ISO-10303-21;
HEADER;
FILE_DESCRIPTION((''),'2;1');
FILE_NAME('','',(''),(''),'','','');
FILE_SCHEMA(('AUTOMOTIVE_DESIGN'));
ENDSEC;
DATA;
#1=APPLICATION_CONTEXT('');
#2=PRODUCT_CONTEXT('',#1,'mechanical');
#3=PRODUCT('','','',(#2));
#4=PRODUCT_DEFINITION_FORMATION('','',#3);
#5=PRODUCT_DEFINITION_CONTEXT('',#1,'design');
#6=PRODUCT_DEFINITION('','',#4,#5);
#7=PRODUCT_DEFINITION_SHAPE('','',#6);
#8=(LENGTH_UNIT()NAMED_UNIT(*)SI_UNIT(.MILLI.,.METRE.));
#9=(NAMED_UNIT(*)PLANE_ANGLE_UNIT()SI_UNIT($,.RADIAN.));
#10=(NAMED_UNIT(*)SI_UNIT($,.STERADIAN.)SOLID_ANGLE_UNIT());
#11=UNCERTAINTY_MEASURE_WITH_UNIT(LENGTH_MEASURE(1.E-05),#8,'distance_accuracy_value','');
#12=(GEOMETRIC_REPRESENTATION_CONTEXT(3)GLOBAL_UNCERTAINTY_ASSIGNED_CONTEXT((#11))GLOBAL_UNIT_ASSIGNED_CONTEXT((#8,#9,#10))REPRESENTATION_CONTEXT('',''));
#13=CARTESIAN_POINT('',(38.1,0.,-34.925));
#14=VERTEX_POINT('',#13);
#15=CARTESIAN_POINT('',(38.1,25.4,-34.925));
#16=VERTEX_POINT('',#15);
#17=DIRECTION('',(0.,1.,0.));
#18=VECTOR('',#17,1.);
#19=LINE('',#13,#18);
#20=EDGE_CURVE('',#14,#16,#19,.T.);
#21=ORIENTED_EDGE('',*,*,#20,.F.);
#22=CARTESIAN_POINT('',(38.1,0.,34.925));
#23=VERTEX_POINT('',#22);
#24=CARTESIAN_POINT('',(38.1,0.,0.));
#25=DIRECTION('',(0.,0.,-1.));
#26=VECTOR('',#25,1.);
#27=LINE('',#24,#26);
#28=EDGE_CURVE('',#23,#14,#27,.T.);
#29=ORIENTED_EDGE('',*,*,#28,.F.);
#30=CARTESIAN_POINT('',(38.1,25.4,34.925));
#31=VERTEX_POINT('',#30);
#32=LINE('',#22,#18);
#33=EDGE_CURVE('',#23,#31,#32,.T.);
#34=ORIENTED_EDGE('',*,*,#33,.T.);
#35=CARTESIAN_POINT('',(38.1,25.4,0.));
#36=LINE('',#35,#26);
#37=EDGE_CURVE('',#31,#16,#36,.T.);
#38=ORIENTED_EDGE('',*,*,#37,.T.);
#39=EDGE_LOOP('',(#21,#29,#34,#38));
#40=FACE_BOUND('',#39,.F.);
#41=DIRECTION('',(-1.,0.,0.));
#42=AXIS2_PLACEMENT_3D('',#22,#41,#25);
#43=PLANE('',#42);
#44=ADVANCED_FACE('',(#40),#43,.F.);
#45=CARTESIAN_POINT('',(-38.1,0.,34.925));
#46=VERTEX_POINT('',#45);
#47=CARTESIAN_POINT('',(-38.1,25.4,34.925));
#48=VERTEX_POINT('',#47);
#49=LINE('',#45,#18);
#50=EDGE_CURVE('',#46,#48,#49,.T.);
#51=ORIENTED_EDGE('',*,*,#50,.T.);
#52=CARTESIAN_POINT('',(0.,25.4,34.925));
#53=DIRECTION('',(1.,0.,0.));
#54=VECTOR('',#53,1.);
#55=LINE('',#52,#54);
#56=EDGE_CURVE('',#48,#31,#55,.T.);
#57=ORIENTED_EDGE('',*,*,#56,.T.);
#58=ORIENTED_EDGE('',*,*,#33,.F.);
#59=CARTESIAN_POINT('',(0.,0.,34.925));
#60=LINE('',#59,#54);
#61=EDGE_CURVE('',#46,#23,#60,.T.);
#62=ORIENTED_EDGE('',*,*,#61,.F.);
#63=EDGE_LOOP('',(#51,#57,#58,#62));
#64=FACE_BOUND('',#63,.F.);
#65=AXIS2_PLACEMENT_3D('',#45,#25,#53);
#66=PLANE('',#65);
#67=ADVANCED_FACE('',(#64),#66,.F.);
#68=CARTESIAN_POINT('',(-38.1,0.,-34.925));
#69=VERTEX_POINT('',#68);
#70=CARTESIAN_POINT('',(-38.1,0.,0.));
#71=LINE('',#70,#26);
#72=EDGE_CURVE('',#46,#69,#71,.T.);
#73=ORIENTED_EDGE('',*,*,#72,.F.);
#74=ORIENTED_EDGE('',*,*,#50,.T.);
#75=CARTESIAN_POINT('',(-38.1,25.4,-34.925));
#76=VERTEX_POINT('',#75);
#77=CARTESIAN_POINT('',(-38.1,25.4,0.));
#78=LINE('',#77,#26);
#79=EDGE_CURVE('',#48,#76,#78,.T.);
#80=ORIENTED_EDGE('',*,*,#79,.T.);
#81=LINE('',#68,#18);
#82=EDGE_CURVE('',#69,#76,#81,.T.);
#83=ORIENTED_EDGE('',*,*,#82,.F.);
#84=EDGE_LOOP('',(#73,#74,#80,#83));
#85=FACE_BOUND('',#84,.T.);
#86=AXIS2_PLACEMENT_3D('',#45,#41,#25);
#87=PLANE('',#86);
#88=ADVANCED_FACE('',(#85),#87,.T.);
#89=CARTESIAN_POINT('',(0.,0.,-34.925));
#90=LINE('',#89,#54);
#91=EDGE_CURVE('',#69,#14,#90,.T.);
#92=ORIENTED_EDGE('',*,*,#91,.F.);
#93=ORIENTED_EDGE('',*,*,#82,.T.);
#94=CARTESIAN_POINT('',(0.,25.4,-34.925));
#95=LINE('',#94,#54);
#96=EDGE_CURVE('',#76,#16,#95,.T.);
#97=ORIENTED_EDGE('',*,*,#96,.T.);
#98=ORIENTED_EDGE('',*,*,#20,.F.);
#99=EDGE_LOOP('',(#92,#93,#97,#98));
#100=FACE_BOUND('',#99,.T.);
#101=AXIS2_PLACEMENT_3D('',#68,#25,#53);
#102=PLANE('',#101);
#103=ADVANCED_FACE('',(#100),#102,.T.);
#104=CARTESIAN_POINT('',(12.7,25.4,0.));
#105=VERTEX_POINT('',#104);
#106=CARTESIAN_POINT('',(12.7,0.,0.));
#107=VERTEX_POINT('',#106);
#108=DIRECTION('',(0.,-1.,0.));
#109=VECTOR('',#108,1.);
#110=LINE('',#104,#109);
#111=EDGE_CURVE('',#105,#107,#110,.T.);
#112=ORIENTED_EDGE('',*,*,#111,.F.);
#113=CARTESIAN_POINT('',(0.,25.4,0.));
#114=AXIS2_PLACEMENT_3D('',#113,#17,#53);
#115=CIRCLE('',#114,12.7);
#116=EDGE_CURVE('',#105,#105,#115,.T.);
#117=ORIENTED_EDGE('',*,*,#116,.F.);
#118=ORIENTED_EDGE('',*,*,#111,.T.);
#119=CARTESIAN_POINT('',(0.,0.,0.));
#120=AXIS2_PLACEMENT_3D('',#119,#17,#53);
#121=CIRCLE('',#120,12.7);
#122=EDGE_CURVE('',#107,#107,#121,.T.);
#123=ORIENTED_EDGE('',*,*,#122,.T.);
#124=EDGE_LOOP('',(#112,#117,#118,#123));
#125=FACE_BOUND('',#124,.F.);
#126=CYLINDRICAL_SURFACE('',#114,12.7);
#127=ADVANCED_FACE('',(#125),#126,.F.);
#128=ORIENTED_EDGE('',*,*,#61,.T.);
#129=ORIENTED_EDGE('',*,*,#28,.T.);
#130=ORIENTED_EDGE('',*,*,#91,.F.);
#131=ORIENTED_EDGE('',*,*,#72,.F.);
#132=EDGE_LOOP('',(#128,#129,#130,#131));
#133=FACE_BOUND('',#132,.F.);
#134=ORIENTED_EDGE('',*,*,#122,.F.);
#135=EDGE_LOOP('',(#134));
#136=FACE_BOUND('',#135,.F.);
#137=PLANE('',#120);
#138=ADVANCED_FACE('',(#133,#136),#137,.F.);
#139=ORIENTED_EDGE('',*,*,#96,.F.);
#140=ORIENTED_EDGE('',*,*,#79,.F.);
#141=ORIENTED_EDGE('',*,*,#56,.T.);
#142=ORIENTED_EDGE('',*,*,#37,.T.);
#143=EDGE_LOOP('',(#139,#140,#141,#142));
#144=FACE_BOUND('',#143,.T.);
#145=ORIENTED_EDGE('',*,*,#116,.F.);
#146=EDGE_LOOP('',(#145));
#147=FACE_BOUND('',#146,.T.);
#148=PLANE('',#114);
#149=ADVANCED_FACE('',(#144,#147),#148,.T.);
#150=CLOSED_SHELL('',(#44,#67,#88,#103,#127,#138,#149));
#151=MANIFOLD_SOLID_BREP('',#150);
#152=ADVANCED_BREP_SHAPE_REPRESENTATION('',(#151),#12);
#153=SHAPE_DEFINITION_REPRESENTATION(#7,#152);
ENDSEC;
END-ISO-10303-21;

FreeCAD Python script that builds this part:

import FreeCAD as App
import Part
import Sketcher
Q = App.Units.Quantity


def add_polygon(sketch, points):
    """Adds a closed chain of lines whose ends are joined by coincident constraints."""
    first, n = sketch.GeometryCount, len(points)
    for a, b in zip(points, points[1:] + points[:1]):
        sketch.addGeometry(Part.LineSegment(App.Vector(*a, 0), App.Vector(*b, 0)), False)
    for i in range(n):
        sketch.addConstraint(Sketcher.Constraint("Coincident", first + i, 2, first + (i + 1) % n, 1))

doc = App.newDocument("Part")
params = doc.addObject("Spreadsheet::Sheet", "Params")
for row, (alias, value) in enumerate([
    ("sketch1_width", "3 in"),
    ("sketch1_height", "2.75 in"),
    ("pad1_length", "1 in"),
    ("sketch2_diameter", "1 in"),
], start=1):
    params.set(f"A{row}", alias)
    params.set(f"B{row}", "=" + value)
    params.setAlias(f"B{row}", alias)

body = doc.addObject("PartDesign::Body", "Body")

sketch1 = doc.addObject("Sketcher::SketchObject", "Sketch")
body.addObject(sketch1)
sketch1.AttachmentSupport = (doc.XZ_Plane, [""])
sketch1.MapMode = "FlatFace"
add_polygon(sketch1, [(-38.1, -34.925), (-38.1, 34.925), (38.1, 34.925), (38.1, -34.925)])
sketch1.addConstraint(Sketcher.Constraint("Vertical", 0))
sketch1.addConstraint(Sketcher.Constraint("Horizontal", 1))
sketch1.addConstraint(Sketcher.Constraint("Vertical", 2))
sketch1.addConstraint(Sketcher.Constraint("Horizontal", 3))
sketch1.addConstraint(Sketcher.Constraint("Symmetric", 0, 2, 2, 2, -1, 1))
sketch1.addConstraint(Sketcher.Constraint("DistanceX", 1, 1, 1, 2, Q("3 in")))
sketch1.addConstraint(Sketcher.Constraint("DistanceY", 0, 1, 0, 2, Q("2.75 in")))
sketch1.setExpression("Constraints[9]", "Params.sketch1_width")
sketch1.setExpression("Constraints[10]", "Params.sketch1_height")
pad1 = doc.addObject("PartDesign::Pad", "Pad")
body.addObject(pad1)
pad1.Profile = sketch1
pad1.setExpression("Length", "Params.pad1_length")
pad1.Reversed = True

sketch2 = doc.addObject("Sketcher::SketchObject", "Sketch001")
body.addObject(sketch2)
sketch2.AttachmentSupport = (doc.XZ_Plane, [""])
sketch2.MapMode = "FlatFace"
sketch2.AttachmentOffset = App.Placement(App.Vector(0, 0, -1 * 25.4), App.Rotation())
sketch2.addGeometry(Part.Circle(App.Vector(0, 0, 0), App.Vector(0, 0, 1), 12.7), False)
sketch2.addConstraint(Sketcher.Constraint("Coincident", 0, 3, -1, 1))
sketch2.addConstraint(Sketcher.Constraint("Diameter", 0, Q("1 in")))
sketch2.setExpression("Constraints[1]", "Params.sketch2_diameter")
pocket1 = doc.addObject("PartDesign::Pocket", "Pocket")
body.addObject(pocket1)
pocket1.Profile = sketch2
pocket1.Type = "ThroughAll"
pocket1.Reversed = True

doc.recompute()
